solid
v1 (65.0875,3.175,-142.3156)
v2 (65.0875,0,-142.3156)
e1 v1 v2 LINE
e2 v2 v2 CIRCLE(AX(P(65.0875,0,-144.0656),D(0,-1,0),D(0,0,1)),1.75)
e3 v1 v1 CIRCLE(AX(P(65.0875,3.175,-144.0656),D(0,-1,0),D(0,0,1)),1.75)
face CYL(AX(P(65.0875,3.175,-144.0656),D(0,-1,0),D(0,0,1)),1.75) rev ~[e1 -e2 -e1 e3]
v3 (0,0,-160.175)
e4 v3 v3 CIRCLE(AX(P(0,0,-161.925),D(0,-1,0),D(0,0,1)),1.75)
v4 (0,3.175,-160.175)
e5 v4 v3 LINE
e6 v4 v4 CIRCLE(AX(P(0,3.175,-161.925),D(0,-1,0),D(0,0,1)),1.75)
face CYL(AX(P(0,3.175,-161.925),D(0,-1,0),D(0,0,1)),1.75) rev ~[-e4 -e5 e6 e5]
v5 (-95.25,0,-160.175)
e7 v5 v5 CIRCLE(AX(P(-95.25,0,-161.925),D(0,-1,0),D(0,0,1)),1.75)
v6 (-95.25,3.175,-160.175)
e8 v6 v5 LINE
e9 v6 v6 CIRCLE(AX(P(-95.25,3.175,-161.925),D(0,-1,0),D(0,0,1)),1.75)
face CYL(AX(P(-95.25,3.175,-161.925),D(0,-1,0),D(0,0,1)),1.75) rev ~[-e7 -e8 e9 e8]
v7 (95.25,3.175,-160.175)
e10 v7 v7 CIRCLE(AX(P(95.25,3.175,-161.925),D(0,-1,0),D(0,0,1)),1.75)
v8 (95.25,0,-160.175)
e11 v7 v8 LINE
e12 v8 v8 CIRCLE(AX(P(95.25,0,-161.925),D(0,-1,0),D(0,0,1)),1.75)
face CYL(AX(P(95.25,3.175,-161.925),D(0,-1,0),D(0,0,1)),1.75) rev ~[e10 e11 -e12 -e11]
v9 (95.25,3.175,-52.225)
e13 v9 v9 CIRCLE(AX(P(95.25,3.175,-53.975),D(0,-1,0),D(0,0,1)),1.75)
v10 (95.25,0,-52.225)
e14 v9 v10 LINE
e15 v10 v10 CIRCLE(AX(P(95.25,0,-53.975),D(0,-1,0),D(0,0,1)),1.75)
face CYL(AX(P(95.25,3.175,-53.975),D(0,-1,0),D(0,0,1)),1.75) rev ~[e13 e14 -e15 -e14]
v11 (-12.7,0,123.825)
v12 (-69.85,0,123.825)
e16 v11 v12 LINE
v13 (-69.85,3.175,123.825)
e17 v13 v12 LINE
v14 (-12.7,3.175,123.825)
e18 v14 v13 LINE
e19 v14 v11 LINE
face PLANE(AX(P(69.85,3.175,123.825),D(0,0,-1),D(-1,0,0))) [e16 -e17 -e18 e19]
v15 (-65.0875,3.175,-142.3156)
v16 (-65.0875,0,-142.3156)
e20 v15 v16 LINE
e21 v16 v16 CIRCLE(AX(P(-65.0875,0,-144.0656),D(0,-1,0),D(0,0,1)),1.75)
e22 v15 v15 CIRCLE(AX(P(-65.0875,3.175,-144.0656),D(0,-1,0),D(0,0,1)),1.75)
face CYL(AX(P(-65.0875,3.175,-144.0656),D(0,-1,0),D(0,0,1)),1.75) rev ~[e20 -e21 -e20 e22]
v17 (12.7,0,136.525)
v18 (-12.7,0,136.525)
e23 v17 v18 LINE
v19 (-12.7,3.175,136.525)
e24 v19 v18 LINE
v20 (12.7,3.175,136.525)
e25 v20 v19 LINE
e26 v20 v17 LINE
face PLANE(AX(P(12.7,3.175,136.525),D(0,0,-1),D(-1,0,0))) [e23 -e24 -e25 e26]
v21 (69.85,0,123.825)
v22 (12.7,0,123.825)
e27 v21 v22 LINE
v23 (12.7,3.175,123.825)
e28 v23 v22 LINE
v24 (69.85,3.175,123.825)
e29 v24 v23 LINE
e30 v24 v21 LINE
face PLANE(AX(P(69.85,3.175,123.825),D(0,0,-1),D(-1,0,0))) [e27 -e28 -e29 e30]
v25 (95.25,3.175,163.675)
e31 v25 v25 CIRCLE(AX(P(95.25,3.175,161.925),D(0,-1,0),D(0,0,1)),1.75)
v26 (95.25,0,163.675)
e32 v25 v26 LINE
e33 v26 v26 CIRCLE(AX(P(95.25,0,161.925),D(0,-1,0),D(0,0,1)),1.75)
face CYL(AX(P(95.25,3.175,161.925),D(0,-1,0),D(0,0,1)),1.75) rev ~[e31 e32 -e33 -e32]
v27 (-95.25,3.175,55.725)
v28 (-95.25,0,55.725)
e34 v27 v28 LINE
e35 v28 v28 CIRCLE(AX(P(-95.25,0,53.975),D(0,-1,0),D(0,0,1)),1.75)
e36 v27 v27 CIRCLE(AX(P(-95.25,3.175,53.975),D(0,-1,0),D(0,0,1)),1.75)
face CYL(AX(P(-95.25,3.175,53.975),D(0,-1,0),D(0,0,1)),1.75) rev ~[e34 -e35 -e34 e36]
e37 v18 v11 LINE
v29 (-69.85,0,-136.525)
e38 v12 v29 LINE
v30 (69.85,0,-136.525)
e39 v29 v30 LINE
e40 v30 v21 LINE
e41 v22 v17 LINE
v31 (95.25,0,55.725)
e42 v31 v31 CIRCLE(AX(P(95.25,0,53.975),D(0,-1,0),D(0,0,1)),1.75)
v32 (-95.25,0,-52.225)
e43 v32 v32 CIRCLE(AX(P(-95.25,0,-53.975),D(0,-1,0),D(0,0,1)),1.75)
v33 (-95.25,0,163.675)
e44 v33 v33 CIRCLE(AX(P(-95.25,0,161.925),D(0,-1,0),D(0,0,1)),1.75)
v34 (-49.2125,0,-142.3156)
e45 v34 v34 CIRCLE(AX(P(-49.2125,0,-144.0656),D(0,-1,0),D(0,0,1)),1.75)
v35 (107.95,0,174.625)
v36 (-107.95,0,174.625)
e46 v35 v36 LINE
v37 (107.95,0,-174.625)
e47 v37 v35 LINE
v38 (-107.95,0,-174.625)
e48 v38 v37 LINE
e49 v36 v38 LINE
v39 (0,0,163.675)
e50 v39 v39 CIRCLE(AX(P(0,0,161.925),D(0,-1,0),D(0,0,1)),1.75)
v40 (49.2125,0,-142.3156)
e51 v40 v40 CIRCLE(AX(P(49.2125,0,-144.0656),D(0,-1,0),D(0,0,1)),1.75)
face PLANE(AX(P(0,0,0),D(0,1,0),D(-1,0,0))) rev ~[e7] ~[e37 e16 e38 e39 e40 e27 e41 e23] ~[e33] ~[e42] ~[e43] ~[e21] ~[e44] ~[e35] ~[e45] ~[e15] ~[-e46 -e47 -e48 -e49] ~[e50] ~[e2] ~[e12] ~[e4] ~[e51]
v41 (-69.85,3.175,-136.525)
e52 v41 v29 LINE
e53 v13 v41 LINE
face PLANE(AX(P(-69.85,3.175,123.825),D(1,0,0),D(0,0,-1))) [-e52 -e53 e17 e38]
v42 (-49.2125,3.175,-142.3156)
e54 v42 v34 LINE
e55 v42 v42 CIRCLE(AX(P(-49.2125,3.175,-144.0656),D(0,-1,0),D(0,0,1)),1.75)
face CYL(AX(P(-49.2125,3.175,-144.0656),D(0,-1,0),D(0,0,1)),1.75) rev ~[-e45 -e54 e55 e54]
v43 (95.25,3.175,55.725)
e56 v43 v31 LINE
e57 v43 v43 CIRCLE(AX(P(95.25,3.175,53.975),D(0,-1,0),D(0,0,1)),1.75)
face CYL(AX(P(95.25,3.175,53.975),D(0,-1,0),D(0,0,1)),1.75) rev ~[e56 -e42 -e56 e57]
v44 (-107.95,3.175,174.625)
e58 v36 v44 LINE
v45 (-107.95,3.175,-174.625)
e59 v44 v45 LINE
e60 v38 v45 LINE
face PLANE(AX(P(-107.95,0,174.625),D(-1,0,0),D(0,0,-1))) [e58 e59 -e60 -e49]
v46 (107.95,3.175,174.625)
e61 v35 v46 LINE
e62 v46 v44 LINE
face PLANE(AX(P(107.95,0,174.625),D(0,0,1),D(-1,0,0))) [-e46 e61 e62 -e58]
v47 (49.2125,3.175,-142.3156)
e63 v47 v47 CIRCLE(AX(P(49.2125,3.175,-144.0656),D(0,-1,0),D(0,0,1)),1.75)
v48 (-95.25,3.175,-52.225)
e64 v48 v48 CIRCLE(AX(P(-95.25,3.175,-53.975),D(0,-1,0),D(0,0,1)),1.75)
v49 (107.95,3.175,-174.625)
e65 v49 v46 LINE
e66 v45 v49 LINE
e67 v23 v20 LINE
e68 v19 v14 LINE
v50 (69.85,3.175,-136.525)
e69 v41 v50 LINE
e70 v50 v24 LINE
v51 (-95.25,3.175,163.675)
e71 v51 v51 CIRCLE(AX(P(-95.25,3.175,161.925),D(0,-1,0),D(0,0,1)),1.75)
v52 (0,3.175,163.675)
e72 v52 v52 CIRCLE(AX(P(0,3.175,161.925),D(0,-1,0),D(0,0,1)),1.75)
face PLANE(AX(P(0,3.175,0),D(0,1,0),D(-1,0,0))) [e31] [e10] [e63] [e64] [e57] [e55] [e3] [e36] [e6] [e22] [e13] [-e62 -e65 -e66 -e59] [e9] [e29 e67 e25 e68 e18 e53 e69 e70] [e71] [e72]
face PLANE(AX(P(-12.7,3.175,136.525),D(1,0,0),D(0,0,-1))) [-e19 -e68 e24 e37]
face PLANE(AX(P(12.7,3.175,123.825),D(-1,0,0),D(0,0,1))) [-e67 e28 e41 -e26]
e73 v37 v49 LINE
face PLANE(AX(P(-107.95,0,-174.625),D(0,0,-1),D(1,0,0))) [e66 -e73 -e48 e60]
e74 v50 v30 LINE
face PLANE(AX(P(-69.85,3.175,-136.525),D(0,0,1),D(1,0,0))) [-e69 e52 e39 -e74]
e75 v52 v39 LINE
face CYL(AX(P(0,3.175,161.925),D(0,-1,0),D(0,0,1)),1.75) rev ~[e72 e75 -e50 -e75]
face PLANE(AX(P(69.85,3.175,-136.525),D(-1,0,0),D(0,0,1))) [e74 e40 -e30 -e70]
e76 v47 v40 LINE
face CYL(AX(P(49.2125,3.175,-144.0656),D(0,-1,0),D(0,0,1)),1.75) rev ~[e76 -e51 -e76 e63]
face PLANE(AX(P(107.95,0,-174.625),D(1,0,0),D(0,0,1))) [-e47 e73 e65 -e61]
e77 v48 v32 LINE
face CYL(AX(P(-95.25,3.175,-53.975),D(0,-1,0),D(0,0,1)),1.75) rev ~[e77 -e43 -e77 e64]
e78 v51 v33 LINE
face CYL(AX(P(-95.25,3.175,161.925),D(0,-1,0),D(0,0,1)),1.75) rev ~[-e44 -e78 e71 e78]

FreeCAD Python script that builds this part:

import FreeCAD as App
import Part
import Sketcher

V = App.Vector
Q = App.Units.Quantity


def add_polygon(sketch, points):
    """Adds a closed chain of lines whose ends are joined by coincident constraints."""
    first, n = sketch.GeometryCount, len(points)
    for a, b in zip(points, points[1:] + points[:1]):
        sketch.addGeometry(Part.LineSegment(App.Vector(*a, 0), App.Vector(*b, 0)), False)
    for i in range(n):
        sketch.addConstraint(Sketcher.Constraint("Coincident", first + i, 2, first + (i + 1) % n, 1))

doc = App.newDocument("Part")
body = doc.addObject("PartDesign::Body", "Body")

sketch1 = body.newObject("Sketcher::SketchObject", "Sketch")
sketch1.AttachmentSupport = (doc.getObject("XZ_Plane"), [""])
sketch1.MapMode = "FlatFace"
add_polygon(sketch1, [(108, -175), (-108, -175), (-108, 175), (108, 175)])
sketch1.addConstraint([
    Sketcher.Constraint("Horizontal", 0),
    Sketcher.Constraint("Vertical", 1),
    Sketcher.Constraint("Horizontal", 2),
    Sketcher.Constraint("Vertical", 3),
    Sketcher.Constraint("Symmetric", 0, 2, 2, 2, -1, 1),
    Sketcher.Constraint("DistanceX", 0, 2, 0, 1, Q("8.5 in")),
    Sketcher.Constraint("DistanceY", 1, 1, 1, 2, Q("13.75 in")),
])
pad1 = body.newObject("PartDesign::Pad", "Pad")
pad1.Profile = sketch1
pad1.Length = Q("0.125 in")
pad1.Reversed = True

sketch2 = body.newObject("Sketcher::SketchObject", "Sketch001")
sketch2.AttachmentSupport = (doc.getObject("XZ_Plane"), [""])
sketch2.MapMode = "FlatFace"
sketch2.AttachmentOffset = App.Placement(V(0, 0, -0.125 * 25.4), App.Rotation())
add_polygon(sketch2, [(70, -137), (-70, -137), (-70, 124), (70, 124)])
sketch2.addConstraint([
    Sketcher.Constraint("Horizontal", 0),
    Sketcher.Constraint("Vertical", 1),
    Sketcher.Constraint("Horizontal", 2),
    Sketcher.Constraint("Vertical", 3),
    Sketcher.Constraint("DistanceX", 0, 2, 0, 1, Q("5.5 in")),
    Sketcher.Constraint("DistanceY", 1, 1, 1, 2, Q("10.25 in")),
    Sketcher.Constraint("DistanceX", 0, 2, -1, 1, Q("2.75 in")),
    Sketcher.Constraint("DistanceY", 0, 2, -1, 1, Q("5.375 in")),
])
pocket1 = body.newObject("PartDesign::Pocket", "Pocket")
pocket1.Profile = sketch2
pocket1.Length = Q("1 in")
pocket1.Reversed = True

sketch3 = body.newObject("Sketcher::SketchObject", "Sketch002")
sketch3.AttachmentSupport = (doc.getObject("XZ_Plane"), [""])
sketch3.MapMode = "FlatFace"
sketch3.AttachmentOffset = App.Placement(V(0, 0, -0.125 * 25.4), App.Rotation())
add_polygon(sketch3, [(13, 137), (13, 124), (-13, 124), (-13, 137)])
sketch3.addConstraint([
    Sketcher.Constraint("Vertical", 0),
    Sketcher.Constraint("Horizontal", 1),
    Sketcher.Constraint("Vertical", 2),
    Sketcher.Constraint("Horizontal", 3),
    Sketcher.Constraint("DistanceX", 1, 2, 1, 1, Q("1 in")),
    Sketcher.Constraint("DistanceY", 0, 2, 0, 1, Q("0.5 in")),
    Sketcher.Constraint("DistanceX", -1, 1, 0, 2, Q("0.5 in")),
    Sketcher.Constraint("DistanceY", -1, 1, 0, 2, Q("4.875 in")),
])
pocket2 = body.newObject("PartDesign::Pocket", "Pocket001")
pocket2.Profile = sketch3
pocket2.Length = Q("1 in")
pocket2.Reversed = True

sketch4 = body.newObject("Sketcher::SketchObject", "Sketch003")
sketch4.AttachmentSupport = (doc.getObject("XZ_Plane"), [""])
sketch4.MapMode = "FlatFace"
sketch4.AttachmentOffset = App.Placement(V(0, 0, -0.125 * 25.4), App.Rotation())
sketch4.addGeometry([
    Part.Circle(V(65.1, -144.1, 0), V(0, 0, 1), 1.8),
    Part.Circle(V(49.2, -144.1, 0), V(0, 0, 1), 1.8),
    Part.Circle(V(-49.2, -144.1, 0), V(0, 0, 1), 1.8),
    Part.Circle(V(-65.1, -144.1, 0), V(0, 0, 1), 1.8),
], False)
sketch4.addConstraint([
    Sketcher.Constraint("Equal", 0, 1),
    Sketcher.Constraint("Equal", 1, 2),
    Sketcher.Constraint("Equal", 2, 3),
    Sketcher.Constraint("Symmetric", 1, 3, 2, 3, -2),
    Sketcher.Constraint("Symmetric", 0, 3, 3, 3, -2),
    Sketcher.Constraint("Horizontal", 0, 3, 1, 3),
    Sketcher.Constraint("Diameter", 0, Q("0.1378 in")),
    Sketcher.Constraint("DistanceX", 2, 3, 0, 3, Q("4.5 in")),
    Sketcher.Constraint("DistanceX", -1, 1, 0, 3, Q("2.5625 in")),
    Sketcher.Constraint("DistanceY", 0, 3, -1, 1, Q("5.671874 in")),
])
doc.recompute()
hole = body.newObject("PartDesign::Hole", "Hole")
hole.Profile = sketch4
hole.ThreadType = "None"
hole.Diameter = Q("0.1377953 in")
hole.DepthType = "ThroughAll"
hole.Reversed = True

sketch5 = body.newObject("Sketcher::SketchObject", "Sketch004")
sketch5.AttachmentSupport = (doc.getObject("XZ_Plane"), [""])
sketch5.MapMode = "FlatFace"
sketch5.AttachmentOffset = App.Placement(V(0, 0, -0.125 * 25.4), App.Rotation())
sketch5.addGeometry([
    Part.Circle(V(-95.2, 161.9, 0), V(0, 0, 1), 1.8),
    Part.Circle(V(0, 161.9, 0), V(0, 0, 1), 1.8),
    Part.Circle(V(95.2, 161.9, 0), V(0, 0, 1), 1.8),
    Part.Circle(V(95.2, 54, 0), V(0, 0, 1), 1.8),
    Part.Circle(V(95.2, -54, 0), V(0, 0, 1), 1.8),
    Part.Circle(V(95.2, -161.9, 0), V(0, 0, 1), 1.8),
    Part.Circle(V(0, -161.9, 0), V(0, 0, 1), 1.8),
    Part.Circle(V(-95.2, -161.9, 0), V(0, 0, 1), 1.8),
    Part.Circle(V(-95.2, -54, 0), V(0, 0, 1), 1.8),
    Part.Circle(V(-95.2, 54, 0), V(0, 0, 1), 1.8),
], False)
sketch5.addConstraint([
    Sketcher.Constraint("Equal", 0, 1),
    Sketcher.Constraint("Equal", 1, 2),
    Sketcher.Constraint("Equal", 2, 3),
    Sketcher.Constraint("Equal", 3, 4),
    Sketcher.Constraint("Equal", 4, 5),
    Sketcher.Constraint("Equal", 5, 6),
    Sketcher.Constraint("Equal", 6, 7),
    Sketcher.Constraint("Equal", 7, 8),
    Sketcher.Constraint("Equal", 8, 9),
    Sketcher.Constraint("Symmetric", 0, 3, 5, 3, -1, 1),
    Sketcher.Constraint("Symmetric", 1, 3, 6, 3, -1, 1),
    Sketcher.Constraint("Symmetric", 2, 3, 7, 3, -1, 1),
    Sketcher.Constraint("Symmetric", 3, 3, 8, 3, -1, 1),
    Sketcher.Constraint("Symmetric", 4, 3, 9, 3, -1, 1),
    Sketcher.Constraint("Symmetric", 0, 3, 2, 3, -2),
    Sketcher.Constraint("Symmetric", 4, 3, 8, 3, -2),
    Sketcher.Constraint("PointOnObject", 1, 3, -2),
    Sketcher.Constraint("Horizontal", 0, 3, 1, 3),
    Sketcher.Constraint("Vertical", 2, 3, 3, 3),
    Sketcher.Constraint("Diameter", 0, Q("0.1378 in")),
    Sketcher.Constraint("DistanceX", 0, 3, 2, 3, Q("7.5 in")),
    Sketcher.Constraint("DistanceY", 4, 3, 2, 3, Q("8.5 in")),
    Sketcher.Constraint("DistanceY", 3, 3, 2, 3, Q("4.25 in")),
])
doc.recompute()
hole2 = body.newObject("PartDesign::Hole", "Hole001")
hole2.Profile = sketch5
hole2.ThreadType = "None"
hole2.Diameter = Q("0.1377953 in")
hole2.DepthType = "ThroughAll"
hole2.Reversed = True

doc.recompute()
